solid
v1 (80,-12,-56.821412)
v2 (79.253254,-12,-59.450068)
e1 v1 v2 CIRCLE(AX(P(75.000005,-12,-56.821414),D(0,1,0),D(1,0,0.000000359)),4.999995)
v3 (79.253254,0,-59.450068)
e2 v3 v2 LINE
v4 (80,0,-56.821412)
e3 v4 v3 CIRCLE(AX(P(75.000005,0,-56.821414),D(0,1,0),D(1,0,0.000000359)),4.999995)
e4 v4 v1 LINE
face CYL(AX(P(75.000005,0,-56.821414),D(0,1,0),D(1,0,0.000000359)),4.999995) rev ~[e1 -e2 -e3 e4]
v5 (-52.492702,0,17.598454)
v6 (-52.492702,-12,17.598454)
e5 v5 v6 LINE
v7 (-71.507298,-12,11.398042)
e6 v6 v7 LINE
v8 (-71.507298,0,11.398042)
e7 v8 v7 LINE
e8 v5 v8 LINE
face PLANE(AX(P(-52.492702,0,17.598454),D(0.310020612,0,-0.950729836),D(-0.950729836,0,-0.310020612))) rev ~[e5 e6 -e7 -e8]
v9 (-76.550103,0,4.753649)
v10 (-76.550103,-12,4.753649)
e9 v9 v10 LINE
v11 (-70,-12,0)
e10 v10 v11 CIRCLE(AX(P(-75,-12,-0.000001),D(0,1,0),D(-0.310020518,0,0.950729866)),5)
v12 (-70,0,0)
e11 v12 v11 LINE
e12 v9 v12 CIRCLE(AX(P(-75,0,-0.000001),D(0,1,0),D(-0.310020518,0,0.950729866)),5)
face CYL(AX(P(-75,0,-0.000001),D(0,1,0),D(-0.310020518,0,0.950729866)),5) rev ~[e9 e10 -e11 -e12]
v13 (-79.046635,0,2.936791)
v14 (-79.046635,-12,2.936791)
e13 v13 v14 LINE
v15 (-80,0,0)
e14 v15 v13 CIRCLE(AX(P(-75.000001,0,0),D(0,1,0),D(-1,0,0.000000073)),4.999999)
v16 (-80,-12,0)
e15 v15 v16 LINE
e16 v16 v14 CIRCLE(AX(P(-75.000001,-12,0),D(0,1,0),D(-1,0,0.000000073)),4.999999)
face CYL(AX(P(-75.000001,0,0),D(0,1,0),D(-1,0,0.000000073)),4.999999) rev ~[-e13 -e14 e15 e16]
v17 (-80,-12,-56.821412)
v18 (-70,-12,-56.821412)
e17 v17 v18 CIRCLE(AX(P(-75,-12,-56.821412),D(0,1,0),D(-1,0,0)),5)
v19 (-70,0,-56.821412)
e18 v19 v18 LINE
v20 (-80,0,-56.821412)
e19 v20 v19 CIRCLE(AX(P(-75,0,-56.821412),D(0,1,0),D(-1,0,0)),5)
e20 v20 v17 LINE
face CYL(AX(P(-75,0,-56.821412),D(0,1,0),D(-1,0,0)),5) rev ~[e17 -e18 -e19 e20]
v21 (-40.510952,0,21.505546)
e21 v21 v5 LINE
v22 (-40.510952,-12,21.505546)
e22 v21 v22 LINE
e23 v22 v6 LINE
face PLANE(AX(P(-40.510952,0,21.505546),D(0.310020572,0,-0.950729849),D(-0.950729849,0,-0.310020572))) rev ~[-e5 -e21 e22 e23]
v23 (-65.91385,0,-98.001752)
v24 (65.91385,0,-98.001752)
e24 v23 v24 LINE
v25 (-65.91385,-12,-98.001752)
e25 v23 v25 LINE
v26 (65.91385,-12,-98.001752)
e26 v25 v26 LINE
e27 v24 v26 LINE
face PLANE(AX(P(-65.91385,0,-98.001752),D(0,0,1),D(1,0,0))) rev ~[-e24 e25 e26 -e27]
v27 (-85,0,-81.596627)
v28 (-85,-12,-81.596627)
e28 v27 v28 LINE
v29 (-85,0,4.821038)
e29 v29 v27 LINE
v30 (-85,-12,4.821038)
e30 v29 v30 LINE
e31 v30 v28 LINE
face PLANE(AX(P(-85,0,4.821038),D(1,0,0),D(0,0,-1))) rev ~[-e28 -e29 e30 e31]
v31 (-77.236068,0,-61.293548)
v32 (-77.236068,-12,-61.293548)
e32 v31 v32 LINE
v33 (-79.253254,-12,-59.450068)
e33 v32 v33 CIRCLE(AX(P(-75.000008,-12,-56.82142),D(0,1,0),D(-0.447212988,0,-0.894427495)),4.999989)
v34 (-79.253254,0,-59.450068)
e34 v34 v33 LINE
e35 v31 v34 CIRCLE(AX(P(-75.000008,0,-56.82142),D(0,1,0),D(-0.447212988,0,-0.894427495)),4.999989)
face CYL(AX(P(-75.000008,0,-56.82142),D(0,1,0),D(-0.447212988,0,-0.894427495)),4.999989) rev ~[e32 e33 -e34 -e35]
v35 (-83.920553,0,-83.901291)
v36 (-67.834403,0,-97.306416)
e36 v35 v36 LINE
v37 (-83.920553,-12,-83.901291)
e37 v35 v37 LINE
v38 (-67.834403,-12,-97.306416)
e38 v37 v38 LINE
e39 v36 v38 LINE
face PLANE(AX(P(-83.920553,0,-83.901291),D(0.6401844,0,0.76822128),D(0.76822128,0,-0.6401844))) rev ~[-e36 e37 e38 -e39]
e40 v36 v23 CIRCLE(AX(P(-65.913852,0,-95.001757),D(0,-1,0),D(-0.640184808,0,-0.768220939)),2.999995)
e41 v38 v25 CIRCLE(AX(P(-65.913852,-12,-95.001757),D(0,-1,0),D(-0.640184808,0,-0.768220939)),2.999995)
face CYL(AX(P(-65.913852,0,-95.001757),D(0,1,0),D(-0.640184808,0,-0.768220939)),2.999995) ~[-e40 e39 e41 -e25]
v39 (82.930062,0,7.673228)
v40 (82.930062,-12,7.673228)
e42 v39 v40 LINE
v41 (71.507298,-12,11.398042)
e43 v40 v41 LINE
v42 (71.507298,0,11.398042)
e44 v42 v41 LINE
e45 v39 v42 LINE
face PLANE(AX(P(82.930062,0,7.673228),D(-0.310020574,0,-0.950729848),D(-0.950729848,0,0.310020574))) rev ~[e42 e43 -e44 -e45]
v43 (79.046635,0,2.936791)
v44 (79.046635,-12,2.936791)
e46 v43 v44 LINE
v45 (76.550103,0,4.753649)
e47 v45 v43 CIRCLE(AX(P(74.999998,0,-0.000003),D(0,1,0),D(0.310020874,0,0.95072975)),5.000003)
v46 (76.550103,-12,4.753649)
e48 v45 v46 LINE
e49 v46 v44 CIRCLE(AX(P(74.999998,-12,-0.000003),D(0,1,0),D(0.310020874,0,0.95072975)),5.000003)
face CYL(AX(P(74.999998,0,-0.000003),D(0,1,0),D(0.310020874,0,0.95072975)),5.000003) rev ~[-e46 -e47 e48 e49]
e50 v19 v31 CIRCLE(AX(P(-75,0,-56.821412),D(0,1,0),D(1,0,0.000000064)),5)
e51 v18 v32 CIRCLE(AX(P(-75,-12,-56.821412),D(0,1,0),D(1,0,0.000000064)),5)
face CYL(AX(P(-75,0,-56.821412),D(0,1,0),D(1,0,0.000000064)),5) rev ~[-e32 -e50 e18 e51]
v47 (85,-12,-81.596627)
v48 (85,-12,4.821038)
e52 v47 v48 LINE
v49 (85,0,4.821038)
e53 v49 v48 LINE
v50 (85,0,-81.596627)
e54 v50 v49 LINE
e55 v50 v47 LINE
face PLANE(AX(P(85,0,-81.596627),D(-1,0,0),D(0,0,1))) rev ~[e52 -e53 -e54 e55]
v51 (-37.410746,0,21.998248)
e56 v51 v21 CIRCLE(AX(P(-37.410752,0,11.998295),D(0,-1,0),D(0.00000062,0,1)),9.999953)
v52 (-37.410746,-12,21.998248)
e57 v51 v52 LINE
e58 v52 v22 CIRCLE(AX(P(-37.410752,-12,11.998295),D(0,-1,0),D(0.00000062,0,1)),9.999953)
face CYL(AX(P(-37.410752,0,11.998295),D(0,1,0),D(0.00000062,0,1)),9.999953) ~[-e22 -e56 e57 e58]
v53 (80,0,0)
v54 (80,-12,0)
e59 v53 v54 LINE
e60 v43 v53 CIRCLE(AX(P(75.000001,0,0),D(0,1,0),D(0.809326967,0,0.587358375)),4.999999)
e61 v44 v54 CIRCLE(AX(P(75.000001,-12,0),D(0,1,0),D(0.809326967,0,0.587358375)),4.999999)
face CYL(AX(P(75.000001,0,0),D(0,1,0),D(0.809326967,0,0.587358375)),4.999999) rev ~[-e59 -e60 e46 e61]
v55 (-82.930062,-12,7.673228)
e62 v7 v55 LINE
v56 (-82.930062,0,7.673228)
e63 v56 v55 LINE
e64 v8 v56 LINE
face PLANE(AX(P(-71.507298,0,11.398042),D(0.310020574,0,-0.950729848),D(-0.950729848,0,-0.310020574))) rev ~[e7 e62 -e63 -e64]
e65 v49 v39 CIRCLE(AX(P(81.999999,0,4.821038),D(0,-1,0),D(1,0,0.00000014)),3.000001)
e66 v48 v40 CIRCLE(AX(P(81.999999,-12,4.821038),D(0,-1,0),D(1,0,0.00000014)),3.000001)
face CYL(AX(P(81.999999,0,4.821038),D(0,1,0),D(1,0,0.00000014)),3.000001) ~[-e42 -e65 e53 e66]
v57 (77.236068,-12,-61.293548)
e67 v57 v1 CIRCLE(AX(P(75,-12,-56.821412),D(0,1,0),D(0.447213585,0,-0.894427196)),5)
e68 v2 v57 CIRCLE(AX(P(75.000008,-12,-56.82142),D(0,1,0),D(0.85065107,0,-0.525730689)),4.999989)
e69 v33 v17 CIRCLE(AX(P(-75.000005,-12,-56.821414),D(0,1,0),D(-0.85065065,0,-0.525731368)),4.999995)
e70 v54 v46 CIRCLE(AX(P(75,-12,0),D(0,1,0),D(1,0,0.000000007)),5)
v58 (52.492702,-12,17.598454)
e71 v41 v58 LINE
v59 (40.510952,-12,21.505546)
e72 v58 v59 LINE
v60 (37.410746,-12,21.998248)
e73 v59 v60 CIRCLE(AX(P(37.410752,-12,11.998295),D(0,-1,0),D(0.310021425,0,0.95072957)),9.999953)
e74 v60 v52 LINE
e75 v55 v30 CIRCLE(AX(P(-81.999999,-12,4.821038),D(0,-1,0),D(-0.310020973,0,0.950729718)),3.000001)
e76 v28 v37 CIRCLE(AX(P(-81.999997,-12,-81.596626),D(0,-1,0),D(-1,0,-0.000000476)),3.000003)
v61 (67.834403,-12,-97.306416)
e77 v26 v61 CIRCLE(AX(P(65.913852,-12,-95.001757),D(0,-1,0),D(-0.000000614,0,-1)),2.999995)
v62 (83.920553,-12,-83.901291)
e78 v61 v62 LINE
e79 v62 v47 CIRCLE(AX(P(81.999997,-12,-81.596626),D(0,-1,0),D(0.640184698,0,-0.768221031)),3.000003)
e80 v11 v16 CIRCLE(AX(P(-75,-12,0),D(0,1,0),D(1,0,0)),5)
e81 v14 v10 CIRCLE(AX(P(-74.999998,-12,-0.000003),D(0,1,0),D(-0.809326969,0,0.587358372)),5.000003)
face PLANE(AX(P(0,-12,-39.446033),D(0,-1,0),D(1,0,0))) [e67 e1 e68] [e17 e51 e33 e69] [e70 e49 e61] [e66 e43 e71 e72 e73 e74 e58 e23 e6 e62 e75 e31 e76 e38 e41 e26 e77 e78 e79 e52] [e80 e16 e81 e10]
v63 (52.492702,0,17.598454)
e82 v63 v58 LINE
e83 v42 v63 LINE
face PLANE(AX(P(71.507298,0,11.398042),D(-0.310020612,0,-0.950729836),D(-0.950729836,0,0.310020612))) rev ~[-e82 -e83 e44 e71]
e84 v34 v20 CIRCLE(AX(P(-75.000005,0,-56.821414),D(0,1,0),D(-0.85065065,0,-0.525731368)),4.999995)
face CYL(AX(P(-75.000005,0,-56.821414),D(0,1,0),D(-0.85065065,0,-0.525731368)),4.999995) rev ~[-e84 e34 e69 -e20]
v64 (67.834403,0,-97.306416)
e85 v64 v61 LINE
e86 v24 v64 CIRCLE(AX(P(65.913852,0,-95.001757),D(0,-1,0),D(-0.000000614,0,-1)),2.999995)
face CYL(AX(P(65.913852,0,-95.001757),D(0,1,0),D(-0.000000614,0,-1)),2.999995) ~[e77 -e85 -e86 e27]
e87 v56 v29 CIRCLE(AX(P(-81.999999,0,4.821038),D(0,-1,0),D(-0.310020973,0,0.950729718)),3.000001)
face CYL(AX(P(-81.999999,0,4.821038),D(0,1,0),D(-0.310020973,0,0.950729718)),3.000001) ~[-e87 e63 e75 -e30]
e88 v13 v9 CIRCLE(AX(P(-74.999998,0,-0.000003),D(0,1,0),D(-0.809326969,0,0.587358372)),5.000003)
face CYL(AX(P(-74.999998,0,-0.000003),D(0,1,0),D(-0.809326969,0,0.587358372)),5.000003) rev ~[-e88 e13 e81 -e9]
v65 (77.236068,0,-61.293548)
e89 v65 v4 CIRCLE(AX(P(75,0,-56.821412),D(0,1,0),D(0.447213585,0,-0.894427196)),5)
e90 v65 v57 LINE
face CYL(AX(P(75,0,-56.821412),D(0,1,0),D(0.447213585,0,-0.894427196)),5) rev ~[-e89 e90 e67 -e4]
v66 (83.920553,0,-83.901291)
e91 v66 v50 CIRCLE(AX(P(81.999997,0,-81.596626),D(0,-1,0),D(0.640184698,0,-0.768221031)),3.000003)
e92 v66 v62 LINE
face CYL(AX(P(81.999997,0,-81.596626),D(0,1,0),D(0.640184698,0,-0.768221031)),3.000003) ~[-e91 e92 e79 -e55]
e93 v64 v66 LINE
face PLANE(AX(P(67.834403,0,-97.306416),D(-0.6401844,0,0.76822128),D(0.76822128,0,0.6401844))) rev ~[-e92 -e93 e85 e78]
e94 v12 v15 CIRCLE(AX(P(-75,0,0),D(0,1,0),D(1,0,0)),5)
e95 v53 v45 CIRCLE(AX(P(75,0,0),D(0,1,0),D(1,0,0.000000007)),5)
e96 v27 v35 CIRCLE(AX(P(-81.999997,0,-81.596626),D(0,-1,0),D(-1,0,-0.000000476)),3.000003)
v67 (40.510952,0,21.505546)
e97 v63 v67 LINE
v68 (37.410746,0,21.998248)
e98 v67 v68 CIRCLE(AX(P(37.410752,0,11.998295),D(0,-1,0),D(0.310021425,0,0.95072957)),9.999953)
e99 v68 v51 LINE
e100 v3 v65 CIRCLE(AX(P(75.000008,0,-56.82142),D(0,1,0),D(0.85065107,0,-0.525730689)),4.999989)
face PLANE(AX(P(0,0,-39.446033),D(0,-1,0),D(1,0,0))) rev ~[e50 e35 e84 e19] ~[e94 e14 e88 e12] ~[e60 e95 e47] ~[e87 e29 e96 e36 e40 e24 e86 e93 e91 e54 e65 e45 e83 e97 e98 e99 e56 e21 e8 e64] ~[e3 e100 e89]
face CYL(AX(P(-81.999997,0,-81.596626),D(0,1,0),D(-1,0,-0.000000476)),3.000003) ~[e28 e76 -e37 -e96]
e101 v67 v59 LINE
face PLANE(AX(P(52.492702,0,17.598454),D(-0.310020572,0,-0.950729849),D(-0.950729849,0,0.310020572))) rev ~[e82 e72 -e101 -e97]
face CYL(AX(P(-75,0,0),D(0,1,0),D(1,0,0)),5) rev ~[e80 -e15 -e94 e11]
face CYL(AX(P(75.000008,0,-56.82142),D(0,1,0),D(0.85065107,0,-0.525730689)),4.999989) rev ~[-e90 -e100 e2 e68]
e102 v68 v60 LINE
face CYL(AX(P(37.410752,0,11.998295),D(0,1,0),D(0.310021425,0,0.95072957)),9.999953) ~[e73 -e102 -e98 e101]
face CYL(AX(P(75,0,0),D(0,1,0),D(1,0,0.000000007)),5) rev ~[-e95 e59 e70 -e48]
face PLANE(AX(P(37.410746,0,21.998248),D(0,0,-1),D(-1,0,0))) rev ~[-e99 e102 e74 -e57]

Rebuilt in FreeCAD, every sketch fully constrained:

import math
import FreeCAD as App
import Part
import Sketcher

V = App.Vector
Q = App.Units.Quantity

doc = App.newDocument("Part")
body = doc.addObject("PartDesign::Body", "Body")

# Sketch on XZ plane
sketch1 = body.newObject("Sketcher::SketchObject", "Sketch")
sketch1.AttachmentSupport = (doc.getObject("XZ_Plane"), [""])
sketch1.MapMode = "FlatFace"
sketch1.addGeometry([
    Part.ArcOfCircle(Part.Circle(V(81.999997, -81.596626, 0), V(0, 0, 1), 3.000003), math.radians(-50.194407), math.radians(-0.000027)),  # 0
    Part.LineSegment(V(85, -81.596627, 0), V(85, 4.821038, 0)),  # 1
    Part.ArcOfCircle(Part.Circle(V(81.999999, 4.821038, 0), V(0, 0, 1), 3.000001), math.radians(0.000008), math.radians(71.939506)),  # 2
    Part.LineSegment(V(82.930062, 7.673228, 0), V(71.507298, 11.398042, 0)),  # 3
    Part.LineSegment(V(71.507298, 11.398042, 0), V(52.492702, 17.598454, 0)),  # 4
    Part.LineSegment(V(52.492702, 17.598454, 0), V(40.510952, 21.505546, 0)),  # 5
    Part.ArcOfCircle(Part.Circle(V(37.410752, 11.998295, 0), V(0, 0, 1), 9.999953), math.radians(71.939478), math.radians(90.000036)),  # 6
    Part.LineSegment(V(37.410746, 21.998248, 0), V(-37.410746, 21.998248, 0)),  # 7
    Part.ArcOfCircle(Part.Circle(V(-37.410752, 11.998295, 0), V(0, 0, 1), 9.999953), math.radians(89.999964), math.radians(108.060522)),  # 8
    Part.LineSegment(V(-40.510952, 21.505546, 0), V(-52.492702, 17.598454, 0)),  # 9
    Part.LineSegment(V(-52.492702, 17.598454, 0), V(-71.507298, 11.398042, 0)),  # 10
    Part.LineSegment(V(-71.507298, 11.398042, 0), V(-82.930062, 7.673228, 0)),  # 11
    Part.ArcOfCircle(Part.Circle(V(-81.999999, 4.821038, 0), V(0, 0, 1), 3.000001), math.radians(108.060494), math.radians(179.999992)),  # 12
    Part.LineSegment(V(-85, 4.821038, 0), V(-85, -81.596627, 0)),  # 13
    Part.ArcOfCircle(Part.Circle(V(-81.999997, -81.596626, 0), V(0, 0, 1), 3.000003), math.radians(-179.999973), math.radians(-129.805593)),  # 14
    Part.LineSegment(V(-83.920553, -83.901291, 0), V(-67.834403, -97.306416, 0)),  # 15
    Part.ArcOfCircle(Part.Circle(V(-65.913852, -95.001757, 0), V(0, 0, 1), 2.999995), math.radians(-129.805602), math.radians(-89.999965)),  # 16
    Part.LineSegment(V(-65.91385, -98.001752, 0), V(65.91385, -98.001752, 0)),  # 17
    Part.ArcOfCircle(Part.Circle(V(65.913852, -95.001757, 0), V(0, 0, 1), 2.999995), math.radians(-90.000035), math.radians(-50.194398)),  # 18
    Part.LineSegment(V(67.834403, -97.306416, 0), V(83.920553, -83.901291, 0)),  # 19
    Part.ArcOfCircle(Part.Circle(V(-74.999998, -0.000003, 0), V(0, 0, 1), 5.000003), math.radians(108.060488), math.radians(144.030226)),  # 20
    Part.ArcOfCircle(Part.Circle(V(-75, -0.000001, 0), V(0, 0, 1), 5), math.radians(0.000007), math.radians(108.060467)),  # 21
    Part.ArcOfCircle(Part.Circle(V(-75, 0, 0), V(0, 0, 1), 5), math.radians(180), math.radians(360)),  # 22
    Part.ArcOfCircle(Part.Circle(V(-75.000001, 0, 0), V(0, 0, 1), 4.999999), math.radians(144.030226), math.radians(179.999996)),  # 23
    Part.ArcOfCircle(Part.Circle(V(-75.000005, -56.821414, 0), V(0, 0, 1), 4.999995), math.radians(179.999979), math.radians(211.717492)),  # 24
    Part.ArcOfCircle(Part.Circle(V(-75, -56.821412, 0), V(0, 0, 1), 5), math.radians(0), math.radians(180)),  # 25
    Part.ArcOfCircle(Part.Circle(V(-75, -56.821412, 0), V(0, 0, 1), 5), math.radians(-116.565055), math.radians(0.000004)),  # 26
    Part.ArcOfCircle(Part.Circle(V(-75.000008, -56.82142, 0), V(0, 0, 1), 4.999989), math.radians(-148.282554), math.radians(-116.565012)),  # 27
    Part.ArcOfCircle(Part.Circle(V(75.000008, -56.82142, 0), V(0, 0, 1), 4.999989), math.radians(-63.434988), math.radians(-31.717446)),  # 28
    Part.ArcOfCircle(Part.Circle(V(75, -56.821412, 0), V(0, 0, 1), 5), math.radians(0.000002), math.radians(296.56505)),  # 29
    Part.ArcOfCircle(Part.Circle(V(75.000005, -56.821414, 0), V(0, 0, 1), 4.999995), math.radians(-31.717492), math.radians(0.000021)),  # 30
    Part.ArcOfCircle(Part.Circle(V(75.000001, 0, 0), V(0, 0, 1), 4.999999), math.radians(0.000004), math.radians(35.969774)),  # 31
    Part.ArcOfCircle(Part.Circle(V(75, 0, 0), V(0, 0, 1), 5), math.radians(71.93953), math.radians(360)),  # 32
    Part.ArcOfCircle(Part.Circle(V(74.999998, -0.000003, 0), V(0, 0, 1), 5.000003), math.radians(35.969774), math.radians(71.939512)),  # 33
], False)
sketch1.addConstraint([
    Sketcher.Constraint("Tangent", 0, 2, 1, 1),
    Sketcher.Constraint("Tangent", 1, 2, 2, 1),
    Sketcher.Constraint("Tangent", 2, 2, 3, 1),
    Sketcher.Constraint("Coincident", 3, 2, 4, 1),
    Sketcher.Constraint("Coincident", 4, 2, 5, 1),
    Sketcher.Constraint("Tangent", 5, 2, 6, 1),
    Sketcher.Constraint("Tangent", 6, 2, 7, 1),
    Sketcher.Constraint("Tangent", 7, 2, 8, 1),
    Sketcher.Constraint("Tangent", 8, 2, 9, 1),
    Sketcher.Constraint("Coincident", 9, 2, 10, 1),
    Sketcher.Constraint("Coincident", 10, 2, 11, 1),
    Sketcher.Constraint("Tangent", 11, 2, 12, 1),
    Sketcher.Constraint("Tangent", 12, 2, 13, 1),
    Sketcher.Constraint("Tangent", 13, 2, 14, 1),
    Sketcher.Constraint("Tangent", 14, 2, 15, 1),
    Sketcher.Constraint("Tangent", 15, 2, 16, 1),
    Sketcher.Constraint("Tangent", 16, 2, 17, 1),
    Sketcher.Constraint("Tangent", 17, 2, 18, 1),
    Sketcher.Constraint("Tangent", 18, 2, 19, 1),
    Sketcher.Constraint("Tangent", 19, 2, 0, 1),
    Sketcher.Constraint("Tangent", 20, 1, 21, 2),
    Sketcher.Constraint("Tangent", 21, 1, 22, 2),
    Sketcher.Constraint("Tangent", 22, 1, 23, 2),
    Sketcher.Constraint("Tangent", 23, 1, 20, 2),
    Sketcher.Constraint("Tangent", 24, 1, 25, 2),
    Sketcher.Constraint("Tangent", 25, 1, 26, 2),
    Sketcher.Constraint("Tangent", 26, 1, 27, 2),
    Sketcher.Constraint("Tangent", 27, 1, 24, 2),
    Sketcher.Constraint("Tangent", 28, 1, 29, 2),
    Sketcher.Constraint("Tangent", 29, 1, 30, 2),
    Sketcher.Constraint("Tangent", 30, 1, 28, 2),
    Sketcher.Constraint("Tangent", 31, 1, 32, 2),
    Sketcher.Constraint("Tangent", 32, 1, 33, 2),
    Sketcher.Constraint("Tangent", 33, 1, 31, 2),
    Sketcher.Constraint("Vertical", 1),
    Sketcher.Constraint("Horizontal", 7),
    Sketcher.Constraint("Vertical", 13),
    Sketcher.Constraint("Horizontal", 17),
    Sketcher.Constraint("Equal", 0, 2),
    Sketcher.Constraint("Equal", 6, 8),
    Sketcher.Constraint("Equal", 2, 12),
    Sketcher.Constraint("Equal", 12, 14),
    Sketcher.Constraint("Equal", 16, 18),
    Sketcher.Constraint("Equal", 21, 22),
    Sketcher.Constraint("Equal", 23, 25),
    Sketcher.Constraint("Equal", 25, 26),
    Sketcher.Constraint("Equal", 27, 28),
    Sketcher.Constraint("Equal", 29, 31),
    Sketcher.Constraint("Symmetric", 20, 3, 31, 3, -1, 1),
    Sketcher.Constraint("Symmetric", 2, 3, 12, 3, -2),
    Sketcher.Constraint("Symmetric", 24, 3, 28, 3, -2),
    Sketcher.Constraint("Symmetric", 5, 2, 8, 2, -2),
    Sketcher.Constraint("Symmetric", 3, 2, 10, 2, -2),
    Sketcher.Constraint("Symmetric", 15, 2, 18, 2, -2),
    Sketcher.Constraint("Symmetric", 20, 1, 32, 1, -2),
    Sketcher.Constraint("PointOnObject", 21, 1, -1),
    Sketcher.Constraint("PointOnObject", 22, 1, -1),
    Sketcher.Constraint("PointOnObject", 31, 1, -1),
    Sketcher.Constraint("Parallel", 3, 4),
    Sketcher.Constraint("Parallel", 4, 5),
    Sketcher.Constraint("Horizontal", 4, 2, 9, 2),
    Sketcher.Constraint("Horizontal", 30, 3, 24, 1),
    Sketcher.Constraint("Horizontal", 24, 1, 25, 1),
    Sketcher.Constraint("Horizontal", 26, 1, 28, 1),
    Sketcher.Constraint("Horizontal", 25, 1, 29, 1),
    Sketcher.Constraint("Horizontal", 27, 1, 30, 1),
    Sketcher.Constraint("Horizontal", 23, 1, 33, 1),
    Sketcher.Constraint("Vertical", 23, 3, 25, 3),
    Sketcher.Constraint("Radius", 2, Q("3.000001 mm")),
    Sketcher.Constraint("Radius", 21, Q("5 mm")),
    Sketcher.Constraint("Distance", 4, Q("19.999999 mm")),
    Sketcher.Constraint("DistanceX", -1, 1, 2, 3, Q("81.999999 mm")),
    Sketcher.Constraint("DistanceX", 21, 3, -1, 1, Q("75 mm")),
    Sketcher.Constraint("DistanceX", 17, 1, 17, 2, Q("131.8277 mm")),
    Sketcher.Constraint("Radius", 6, Q("9.999953 mm")),
    Sketcher.Constraint("Radius", 16, Q("2.999995 mm")),
    Sketcher.Constraint("DistanceX", -1, 1, 3, 2, Q("71.507298 mm")),
    Sketcher.Constraint("DistanceX", 16, 3, 8, 3, Q("28.5031 mm")),
    Sketcher.Constraint("DistanceX", 4, 2, 32, 3, Q("22.507298 mm")),
    Sketcher.Constraint("DistanceX", 14, 2, 16, 3, Q("18.006701 mm")),
    Sketcher.Constraint("DistanceY", 1, 1, 1, 2, Q("86.417665 mm")),
    Sketcher.Constraint("DistanceY", 27, 3, -1, 1, Q("56.82142 mm")),
    Sketcher.Constraint("DistanceY", -1, 1, 2, 2, Q("7.673228 mm")),
    Sketcher.Constraint("DistanceY", -1, 1, 20, 1, Q("4.753649 mm")),
    Sketcher.Constraint("DistanceY", -1, 1, 23, 1, Q("2.936791 mm")),
    Sketcher.Constraint("DistanceX", 26, 1, 27, 3, Q("2.23606 mm")),
    Sketcher.Constraint("DistanceY", 26, 1, 27, 1, Q("1.84348 mm")),
])
pad1 = body.newObject("PartDesign::Pad", "Pad")
pad1.Profile = sketch1
pad1.Length = 12

doc.recompute()
